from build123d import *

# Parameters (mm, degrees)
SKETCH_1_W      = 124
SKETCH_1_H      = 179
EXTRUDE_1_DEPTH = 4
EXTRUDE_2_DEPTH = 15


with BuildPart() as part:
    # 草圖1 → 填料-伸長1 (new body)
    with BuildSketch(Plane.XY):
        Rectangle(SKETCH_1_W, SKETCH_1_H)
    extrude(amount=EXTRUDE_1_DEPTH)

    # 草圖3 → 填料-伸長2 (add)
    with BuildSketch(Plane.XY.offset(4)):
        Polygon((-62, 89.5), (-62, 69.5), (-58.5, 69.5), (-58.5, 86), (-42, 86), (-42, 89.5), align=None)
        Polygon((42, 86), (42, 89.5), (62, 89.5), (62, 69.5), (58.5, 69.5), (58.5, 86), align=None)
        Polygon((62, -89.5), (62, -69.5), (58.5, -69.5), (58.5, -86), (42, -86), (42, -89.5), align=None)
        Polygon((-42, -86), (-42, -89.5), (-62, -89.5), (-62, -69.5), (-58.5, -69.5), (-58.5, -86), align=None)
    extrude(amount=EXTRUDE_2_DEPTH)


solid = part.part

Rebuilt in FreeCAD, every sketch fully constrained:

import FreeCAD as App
import Part
import Sketcher

V = App.Vector

doc = App.newDocument("Part")
body = doc.addObject("PartDesign::Body", "Body")

sketch1 = body.newObject("Sketcher::SketchObject", "Sketch")
sketch1.AttachmentSupport = (doc.getObject("XY_Plane"), [""])
sketch1.MapMode = "FlatFace"
sketch1.addGeometry([
    Part.LineSegment(V(-62, 90, 0), V(-62, -90, 0)),
    Part.LineSegment(V(-62, -90, 0), V(62, -90, 0)),
    Part.LineSegment(V(62, -90, 0), V(62, 90, 0)),
    Part.LineSegment(V(62, 90, 0), V(-62, 90, 0)),
], False)
sketch1.addConstraint([
    Sketcher.Constraint("Coincident", 0, 2, 1, 1),
    Sketcher.Constraint("Coincident", 1, 2, 2, 1),
    Sketcher.Constraint("Coincident", 2, 2, 3, 1),
    Sketcher.Constraint("Coincident", 3, 2, 0, 1),
    Sketcher.Constraint("Vertical", 0),
    Sketcher.Constraint("Horizontal", 1),
    Sketcher.Constraint("Vertical", 2),
    Sketcher.Constraint("Horizontal", 3),
    Sketcher.Constraint("Symmetric", 0, 2, 2, 2, -1, 1),
    Sketcher.Constraint("DistanceX", 1, 1, 1, 2, 124.0),
    Sketcher.Constraint("DistanceY", 0, 2, 0, 1, 179.0),
])
pad1 = body.newObject("PartDesign::Pad", "Pad")
pad1.Profile = sketch1
pad1.Length = 4

sketch2 = body.newObject("Sketcher::SketchObject", "Sketch001")
sketch2.AttachmentSupport = (doc.getObject("XY_Plane"), [""])
sketch2.MapMode = "FlatFace"
sketch2.AttachmentOffset = App.Placement(V(0, 0, 4), App.Rotation())
sketch2.addGeometry([
    Part.LineSegment(V(-62, 89.5, 0), V(-62, 69.5, 0)),
    Part.LineSegment(V(-62, 69.5, 0), V(-58.5, 69.5, 0)),
    Part.LineSegment(V(-58.5, 69.5, 0), V(-58.5, 86, 0)),
    Part.LineSegment(V(-58.5, 86, 0), V(-42, 86, 0)),
    Part.LineSegment(V(-42, 86, 0), V(-42, 89.5, 0)),
    Part.LineSegment(V(-42, 89.5, 0), V(-62, 89.5, 0)),
    Part.LineSegment(V(42, 89.5, 0), V(42, 86, 0)),
    Part.LineSegment(V(42, 86, 0), V(58.5, 86, 0)),
    Part.LineSegment(V(58.5, 86, 0), V(58.5, 69.5, 0)),
    Part.LineSegment(V(58.5, 69.5, 0), V(62, 69.5, 0)),
    Part.LineSegment(V(62, 69.5, 0), V(62, 89.5, 0)),
    Part.LineSegment(V(62, 89.5, 0), V(42, 89.5, 0)),
    Part.LineSegment(V(62, -89.5, 0), V(62, -69.5, 0)),
    Part.LineSegment(V(62, -69.5, 0), V(58.5, -69.5, 0)),
    Part.LineSegment(V(58.5, -69.5, 0), V(58.5, -86, 0)),
    Part.LineSegment(V(58.5, -86, 0), V(42, -86, 0)),
    Part.LineSegment(V(42, -86, 0), V(42, -89.5, 0)),
    Part.LineSegment(V(42, -89.5, 0), V(62, -89.5, 0)),
    Part.LineSegment(V(-42, -89.5, 0), V(-42, -86, 0)),
    Part.LineSegment(V(-42, -86, 0), V(-58.5, -86, 0)),
    Part.LineSegment(V(-58.5, -86, 0), V(-58.5, -69.5, 0)),
    Part.LineSegment(V(-58.5, -69.5, 0), V(-62, -69.5, 0)),
    Part.LineSegment(V(-62, -69.5, 0), V(-62, -89.5, 0)),
    Part.LineSegment(V(-62, -89.5, 0), V(-42, -89.5, 0)),
], False)
sketch2.addConstraint([
    Sketcher.Constraint("Coincident", 0, 2, 1, 1),
    Sketcher.Constraint("Coincident", 1, 2, 2, 1),
    Sketcher.Constraint("Coincident", 2, 2, 3, 1),
    Sketcher.Constraint("Coincident", 3, 2, 4, 1),
    Sketcher.Constraint("Coincident", 4, 2, 5, 1),
    Sketcher.Constraint("Coincident", 5, 2, 0, 1),
    Sketcher.Constraint("Coincident", 6, 2, 7, 1),
    Sketcher.Constraint("Coincident", 7, 2, 8, 1),
    Sketcher.Constraint("Coincident", 8, 2, 9, 1),
    Sketcher.Constraint("Coincident", 9, 2, 10, 1),
    Sketcher.Constraint("Coincident", 10, 2, 11, 1),
    Sketcher.Constraint("Coincident", 11, 2, 6, 1),
    Sketcher.Constraint("Coincident", 12, 2, 13, 1),
    Sketcher.Constraint("Coincident", 13, 2, 14, 1),
    Sketcher.Constraint("Coincident", 14, 2, 15, 1),
    Sketcher.Constraint("Coincident", 15, 2, 16, 1),
    Sketcher.Constraint("Coincident", 16, 2, 17, 1),
    Sketcher.Constraint("Coincident", 17, 2, 12, 1),
    Sketcher.Constraint("Coincident", 18, 2, 19, 1),
    Sketcher.Constraint("Coincident", 19, 2, 20, 1),
    Sketcher.Constraint("Coincident", 20, 2, 21, 1),
    Sketcher.Constraint("Coincident", 21, 2, 22, 1),
    Sketcher.Constraint("Coincident", 22, 2, 23, 1),
    Sketcher.Constraint("Coincident", 23, 2, 18, 1),
    Sketcher.Constraint("Vertical", 0),
    Sketcher.Constraint("Horizontal", 1),
    Sketcher.Constraint("Vertical", 2),
    Sketcher.Constraint("Horizontal", 3),
    Sketcher.Constraint("Vertical", 4),
    Sketcher.Constraint("Horizontal", 5),
    Sketcher.Constraint("Vertical", 6),
    Sketcher.Constraint("Horizontal", 7),
    Sketcher.Constraint("Vertical", 8),
    Sketcher.Constraint("Horizontal", 9),
    Sketcher.Constraint("Vertical", 10),
    Sketcher.Constraint("Horizontal", 11),
    Sketcher.Constraint("Vertical", 12),
    Sketcher.Constraint("Horizontal", 13),
    Sketcher.Constraint("Vertical", 14),
    Sketcher.Constraint("Horizontal", 15),
    Sketcher.Constraint("Vertical", 16),
    Sketcher.Constraint("Horizontal", 17),
    Sketcher.Constraint("Vertical", 18),
    Sketcher.Constraint("Horizontal", 19),
    Sketcher.Constraint("Vertical", 20),
    Sketcher.Constraint("Horizontal", 21),
    Sketcher.Constraint("Vertical", 22),
    Sketcher.Constraint("Horizontal", 23),
    Sketcher.Constraint("Symmetric", 0, 2, 12, 2, -1, 1),
    Sketcher.Constraint("Symmetric", 2, 2, 14, 2, -1, 1),
    Sketcher.Constraint("Symmetric", 4, 2, 16, 2, -1, 1),
    Sketcher.Constraint("Symmetric", 6, 2, 18, 2, -1, 1),
    Sketcher.Constraint("Symmetric", 8, 2, 20, 2, -1, 1),
    Sketcher.Constraint("Symmetric", 10, 2, 22, 2, -1, 1),
    Sketcher.Constraint("Symmetric", 3, 2, 6, 2, -2),
    Sketcher.Constraint("Symmetric", 1, 2, 8, 2, -2),
    Sketcher.Constraint("Symmetric", 5, 2, 10, 2, -2),
    Sketcher.Constraint("Equal", 23, 0),
    Sketcher.Constraint("Equal", 19, 2),
    Sketcher.Constraint("DistanceX", 5, 2, 5, 1, 20.0),
    Sketcher.Constraint("DistanceX", 1, 1, 1, 2, 3.5),
    Sketcher.Constraint("DistanceX", 0, 2, -1, 1, 62.0),
    Sketcher.Constraint("DistanceY", -1, 1, 2, 2, 86.0),
])
pad2 = body.newObject("PartDesign::Pad", "Pad001")
pad2.Profile = sketch2
pad2.Length = 15

doc.recompute()
